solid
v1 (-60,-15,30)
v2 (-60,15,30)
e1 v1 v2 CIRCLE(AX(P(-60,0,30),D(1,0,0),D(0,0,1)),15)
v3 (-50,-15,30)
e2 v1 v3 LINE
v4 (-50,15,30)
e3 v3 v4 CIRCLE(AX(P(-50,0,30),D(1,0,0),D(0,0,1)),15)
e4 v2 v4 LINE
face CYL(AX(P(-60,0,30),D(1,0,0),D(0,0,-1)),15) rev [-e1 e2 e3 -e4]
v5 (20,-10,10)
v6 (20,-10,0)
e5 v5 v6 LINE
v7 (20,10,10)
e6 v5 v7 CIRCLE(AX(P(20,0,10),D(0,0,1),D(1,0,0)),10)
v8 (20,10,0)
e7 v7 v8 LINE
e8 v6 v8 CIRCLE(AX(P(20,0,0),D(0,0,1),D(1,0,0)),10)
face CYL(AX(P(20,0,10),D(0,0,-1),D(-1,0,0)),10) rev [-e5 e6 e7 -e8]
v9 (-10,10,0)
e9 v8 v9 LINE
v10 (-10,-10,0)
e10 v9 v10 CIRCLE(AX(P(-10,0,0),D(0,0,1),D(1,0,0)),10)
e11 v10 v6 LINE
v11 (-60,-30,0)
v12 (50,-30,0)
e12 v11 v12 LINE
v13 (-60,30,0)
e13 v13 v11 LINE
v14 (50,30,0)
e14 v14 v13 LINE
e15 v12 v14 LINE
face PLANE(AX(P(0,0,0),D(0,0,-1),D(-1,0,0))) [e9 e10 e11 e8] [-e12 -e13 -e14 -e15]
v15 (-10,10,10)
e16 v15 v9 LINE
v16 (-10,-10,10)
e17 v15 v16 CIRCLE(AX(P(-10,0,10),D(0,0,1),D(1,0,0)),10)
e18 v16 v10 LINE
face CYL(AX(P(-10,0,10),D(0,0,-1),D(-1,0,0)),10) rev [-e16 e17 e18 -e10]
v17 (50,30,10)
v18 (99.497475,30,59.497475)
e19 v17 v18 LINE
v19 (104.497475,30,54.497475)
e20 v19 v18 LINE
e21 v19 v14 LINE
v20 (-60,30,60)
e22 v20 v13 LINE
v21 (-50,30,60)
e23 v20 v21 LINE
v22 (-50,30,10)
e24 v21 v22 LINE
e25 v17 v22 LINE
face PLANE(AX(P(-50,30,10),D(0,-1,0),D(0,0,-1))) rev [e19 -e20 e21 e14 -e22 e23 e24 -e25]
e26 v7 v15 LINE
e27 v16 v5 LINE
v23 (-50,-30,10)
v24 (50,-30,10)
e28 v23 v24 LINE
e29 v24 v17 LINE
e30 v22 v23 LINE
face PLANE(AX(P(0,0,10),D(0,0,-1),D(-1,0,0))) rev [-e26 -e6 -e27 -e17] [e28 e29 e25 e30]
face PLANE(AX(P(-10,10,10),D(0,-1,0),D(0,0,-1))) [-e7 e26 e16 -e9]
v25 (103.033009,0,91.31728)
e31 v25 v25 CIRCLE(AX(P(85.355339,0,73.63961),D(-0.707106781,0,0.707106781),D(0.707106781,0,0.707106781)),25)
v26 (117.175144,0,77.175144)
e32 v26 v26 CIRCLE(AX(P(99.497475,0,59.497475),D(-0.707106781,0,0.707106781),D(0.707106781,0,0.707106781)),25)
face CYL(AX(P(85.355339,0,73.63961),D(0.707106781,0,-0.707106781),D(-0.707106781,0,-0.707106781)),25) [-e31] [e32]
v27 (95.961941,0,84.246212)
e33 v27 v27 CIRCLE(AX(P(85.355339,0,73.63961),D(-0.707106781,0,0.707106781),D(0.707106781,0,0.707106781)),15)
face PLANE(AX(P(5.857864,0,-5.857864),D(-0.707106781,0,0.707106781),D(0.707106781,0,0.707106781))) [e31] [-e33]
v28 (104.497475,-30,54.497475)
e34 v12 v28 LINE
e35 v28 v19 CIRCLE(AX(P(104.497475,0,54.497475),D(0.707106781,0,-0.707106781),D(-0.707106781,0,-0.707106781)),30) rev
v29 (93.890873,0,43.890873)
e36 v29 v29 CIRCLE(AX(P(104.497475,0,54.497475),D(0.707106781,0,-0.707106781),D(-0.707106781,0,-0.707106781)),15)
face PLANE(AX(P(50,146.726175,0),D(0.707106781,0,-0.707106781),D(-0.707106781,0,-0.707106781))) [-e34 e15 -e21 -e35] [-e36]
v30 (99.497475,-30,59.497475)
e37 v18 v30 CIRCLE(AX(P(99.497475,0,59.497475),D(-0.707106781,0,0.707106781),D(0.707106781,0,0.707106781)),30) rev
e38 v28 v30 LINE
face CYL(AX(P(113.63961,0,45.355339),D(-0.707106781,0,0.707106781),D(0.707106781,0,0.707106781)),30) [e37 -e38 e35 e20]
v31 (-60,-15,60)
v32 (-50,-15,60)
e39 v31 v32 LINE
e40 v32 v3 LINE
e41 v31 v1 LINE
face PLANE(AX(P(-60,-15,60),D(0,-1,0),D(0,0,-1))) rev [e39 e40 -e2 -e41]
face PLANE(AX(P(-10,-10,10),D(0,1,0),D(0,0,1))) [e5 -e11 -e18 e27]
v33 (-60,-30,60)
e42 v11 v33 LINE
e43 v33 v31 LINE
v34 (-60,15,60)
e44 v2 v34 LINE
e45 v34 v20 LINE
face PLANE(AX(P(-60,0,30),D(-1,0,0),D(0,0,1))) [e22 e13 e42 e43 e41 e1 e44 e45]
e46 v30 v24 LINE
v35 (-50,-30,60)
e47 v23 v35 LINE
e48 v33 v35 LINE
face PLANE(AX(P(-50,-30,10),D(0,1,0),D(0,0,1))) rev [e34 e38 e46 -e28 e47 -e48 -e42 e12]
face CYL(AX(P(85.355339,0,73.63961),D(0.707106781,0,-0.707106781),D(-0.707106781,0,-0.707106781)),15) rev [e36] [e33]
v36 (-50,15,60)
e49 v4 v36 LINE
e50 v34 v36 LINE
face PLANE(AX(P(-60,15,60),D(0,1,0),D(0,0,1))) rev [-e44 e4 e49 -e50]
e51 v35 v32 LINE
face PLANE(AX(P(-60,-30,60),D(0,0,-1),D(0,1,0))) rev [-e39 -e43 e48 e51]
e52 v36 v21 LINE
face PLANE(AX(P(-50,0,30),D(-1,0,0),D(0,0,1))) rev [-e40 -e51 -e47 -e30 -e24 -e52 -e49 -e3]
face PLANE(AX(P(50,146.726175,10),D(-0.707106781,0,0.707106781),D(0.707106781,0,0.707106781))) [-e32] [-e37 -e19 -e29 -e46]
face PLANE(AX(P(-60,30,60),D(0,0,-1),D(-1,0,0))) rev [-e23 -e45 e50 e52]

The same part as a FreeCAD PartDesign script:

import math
import FreeCAD as App
import Part
import Sketcher
from FreeCAD import Vector
Q = App.Units.Quantity


def add_polygon(sketch, points):
    """Adds a closed chain of lines whose ends are joined by coincident constraints."""
    first, n = sketch.GeometryCount, len(points)
    for a, b in zip(points, points[1:] + points[:1]):
        sketch.addGeometry(Part.LineSegment(App.Vector(*a, 0), App.Vector(*b, 0)), False)
    for i in range(n):
        sketch.addConstraint(Sketcher.Constraint("Coincident", first + i, 2, first + (i + 1) % n, 1))

doc = App.newDocument("Part")
params = doc.addObject("Spreadsheet::Sheet", "Params")
for row, (alias, value) in enumerate([
    ("sketch1_radius", "10 mm"),
    ("sketch1_width", "100 mm"),
    ("sketch1_width2", "30 mm"),
    ("sketch1_height", "60 mm"),
    ("pad1_length", "10 mm"),
    ("sketch2_radius", "15 mm"),
    ("sketch2_width", "60 mm"),
    ("sketch2_height", "30 mm"),
    ("pad2_length", "10 mm"),
    ("sketch3_height", "10 mm"),
    ("pad3_length", "60 mm"),
    ("sketch4_diameter", "50 mm"),
    ("sketch4_diameter2", "30 mm"),
    ("pad4_length", "20 mm"),
    ("sketch5_radius", "30 mm"),
    ("pocket1_length", "20 mm"),
    ("sketch6_diameter", "30 mm"),
    ("pocket2_length", "20 mm"),
], start=1):
    params.set(f"A{row}", alias)
    params.set(f"B{row}", "=" + value)
    params.setAlias(f"B{row}", alias)

body = doc.addObject("PartDesign::Body", "Body")

sketch1 = doc.addObject("Sketcher::SketchObject", "Sketch")
body.addObject(sketch1)
sketch1.AttachmentSupport = (doc.XY_Plane, [""])
sketch1.MapMode = "FlatFace"
add_polygon(sketch1, [(-50, 30), (-50, -30), (50, -30), (50, 30)])
sketch1.addGeometry(Part.ArcOfCircle(Part.Circle(Vector(-10, 0, 0), Vector(0, 0, 1), 10), math.radians(90), math.radians(270)), False)
sketch1.addGeometry(Part.LineSegment(Vector(-10, 10, 0), Vector(20, 10, 0)), False)
sketch1.addGeometry(Part.ArcOfCircle(Part.Circle(Vector(20, 0, 0), Vector(0, 0, 1), 10), math.radians(-90), math.radians(90)), False)
sketch1.addGeometry(Part.LineSegment(Vector(20, -10, 0), Vector(-10, -10, 0)), False)
sketch1.addConstraint([
    Sketcher.Constraint("Tangent", 4, 1, 5, 1),
    Sketcher.Constraint("Tangent", 5, 2, 6, 2),
    Sketcher.Constraint("Tangent", 6, 1, 7, 1),
    Sketcher.Constraint("Tangent", 7, 2, 4, 2),
    Sketcher.Constraint("Vertical", 0),
    Sketcher.Constraint("Horizontal", 1),
    Sketcher.Constraint("Vertical", 2),
    Sketcher.Constraint("Horizontal", 3),
    Sketcher.Constraint("Horizontal", 5),
    Sketcher.Constraint("Horizontal", 7),
    Sketcher.Constraint("Symmetric", 0, 2, 2, 2, -1, 1),
    Sketcher.Constraint("PointOnObject", 4, 3, -1),
    Sketcher.Constraint("Radius", 4, 10.0),
    Sketcher.Constraint("DistanceX", 1, 1, 1, 2, 100.0),
    Sketcher.Constraint("DistanceX", 5, 1, 5, 2, 30.0),
    Sketcher.Constraint("DistanceY", 0, 2, 0, 1, 60.0),
    Sketcher.Constraint("DistanceX", 4, 3, -1, 1, 10.0),
])
sketch1.setExpression("Constraints[16]", "Params.sketch1_radius")
sketch1.setExpression("Constraints[17]", "Params.sketch1_width")
sketch1.setExpression("Constraints[18]", "Params.sketch1_width2")
sketch1.setExpression("Constraints[19]", "Params.sketch1_height")
pad1 = doc.addObject("PartDesign::Pad", "Pad")
body.addObject(pad1)
pad1.Profile = sketch1
pad1.setExpression("Length", "Params.pad1_length")

sketch2 = doc.addObject("Sketcher::SketchObject", "Sketch001")
body.addObject(sketch2)
sketch2.AttachmentSupport = (doc.YZ_Plane, [""])
sketch2.MapMode = "FlatFace"
sketch2.AttachmentOffset = App.Placement(Vector(0, 0, -50), App.Rotation())
sketch2.addGeometry([
    Part.LineSegment(Vector(30, 60, 0), Vector(30, 0, 0)),
    Part.LineSegment(Vector(30, 0, 0), Vector(-30, 0, 0)),
    Part.LineSegment(Vector(-30, 0, 0), Vector(-30, 60, 0)),
    Part.LineSegment(Vector(-30, 60, 0), Vector(-15, 60, 0)),
    Part.LineSegment(Vector(-15, 60, 0), Vector(-15, 30, 0)),
    Part.ArcOfCircle(Part.Circle(Vector(0, 30, 0), Vector(0, 0, 1), 15), math.radians(180), math.radians(360)),
    Part.LineSegment(Vector(15, 30, 0), Vector(15, 60, 0)),
    Part.LineSegment(Vector(15, 60, 0), Vector(30, 60, 0)),
], False)
sketch2.addConstraint([
    Sketcher.Constraint("Coincident", 0, 2, 1, 1),
    Sketcher.Constraint("Coincident", 1, 2, 2, 1),
    Sketcher.Constraint("Coincident", 2, 2, 3, 1),
    Sketcher.Constraint("Coincident", 3, 2, 4, 1),
    Sketcher.Constraint("Tangent", 4, 2, 5, 1),
    Sketcher.Constraint("Tangent", 5, 2, 6, 1),
    Sketcher.Constraint("Coincident", 6, 2, 7, 1),
    Sketcher.Constraint("Coincident", 7, 2, 0, 1),
    Sketcher.Constraint("Vertical", 0),
    Sketcher.Constraint("Horizontal", 1),
    Sketcher.Constraint("Vertical", 2),
    Sketcher.Constraint("Horizontal", 3),
    Sketcher.Constraint("Vertical", 4),
    Sketcher.Constraint("Vertical", 6),
    Sketcher.Constraint("Horizontal", 7),
    Sketcher.Constraint("Symmetric", 0, 2, 1, 2, -1, 1),
    Sketcher.Constraint("Symmetric", 3, 2, 6, 2, -2),
    Sketcher.Constraint("Equal", 1, 0),
    Sketcher.Constraint("Radius", 5, 15.0),
    Sketcher.Constraint("DistanceX", 1, 2, 1, 1, 60.0),
    Sketcher.Constraint("DistanceY", 4, 2, 4, 1, 30.0),
])
sketch2.setExpression("Constraints[18]", "Params.sketch2_radius")
sketch2.setExpression("Constraints[19]", "Params.sketch2_width")
sketch2.setExpression("Constraints[20]", "Params.sketch2_height")
pad2 = doc.addObject("PartDesign::Pad", "Pad001")
body.addObject(pad2)
pad2.Profile = sketch2
pad2.setExpression("Length", "Params.pad2_length")
pad2.Reversed = True

sketch3 = doc.addObject("Sketcher::SketchObject", "Sketch002")
body.addObject(sketch3)
sketch3.AttachmentSupport = (doc.XZ_Plane, [""])
sketch3.MapMode = "FlatFace"
sketch3.AttachmentOffset = App.Placement(Vector(0, 0, 30), App.Rotation())
add_polygon(sketch3, [(125, 85), (50, 10), (50, 0), (130, 80)])
sketch3.addConstraint([
    Sketcher.Constraint("Vertical", 1),
    Sketcher.Constraint("PointOnObject", 1, 2, -1),
    Sketcher.Constraint("Parallel", 0, 2),
    Sketcher.Constraint("Perpendicular", 2, 3),
    Sketcher.Constraint("DistanceY", 1, 2, 1, 1, 10.0),
    Sketcher.Constraint("Angle", 0, Q("-135 deg")),
    Sketcher.Constraint("DistanceX", -1, 1, 0, 2, 50.0),
    Sketcher.Constraint("DistanceX", -1, 1, 2, 2, 130.0),
])
sketch3.setExpression("Constraints[8]", "Params.sketch3_height")
pad3 = doc.addObject("PartDesign::Pad", "Pad002")
body.addObject(pad3)
pad3.Profile = sketch3
pad3.setExpression("Length", "Params.pad3_length")
pad3.Reversed = True

sketch4 = doc.addObject("Sketcher::SketchObject", "Sketch003")
body.addObject(sketch4)
sketch4.Placement = App.Placement(Vector(20, 0, -20), App.Rotation(Vector(0.707106781, 0, 0.707106781), Vector(0, 0.999999999, 0), Vector(-0.707106781, 0, 0.707106781), "ZXY"))
sketch4.addGeometry([
    Part.Circle(Vector(112, 0, 0), Vector(0, 0, 1), 25),
    Part.Circle(Vector(112, 0, 0), Vector(0, 0, 1), 15),
], False)
sketch4.addConstraint([
    Sketcher.Constraint("Coincident", 1, 3, 0, 3),
    Sketcher.Constraint("PointOnObject", 0, 3, -1),
    Sketcher.Constraint("Diameter", 0, 50.0),
    Sketcher.Constraint("Diameter", 1, 30.0),
    Sketcher.Constraint("DistanceX", -1, 1, 0, 3, 112.426407),
])
sketch4.setExpression("Constraints[2]", "Params.sketch4_diameter")
sketch4.setExpression("Constraints[3]", "Params.sketch4_diameter2")
pad4 = doc.addObject("PartDesign::Pad", "Pad003")
body.addObject(pad4)
pad4.Profile = sketch4
pad4.setExpression("Length", "Params.pad4_length")

sketch5 = doc.addObject("Sketcher::SketchObject", "Sketch004")
body.addObject(sketch5)
sketch5.Placement = App.Placement(Vector(20, 0, -20), App.Rotation(Vector(0.707106781, 0, 0.707106781), Vector(0, 0.999999999, 0), Vector(-0.707106781, 0, 0.707106781), "ZXY"))
sketch5.addGeometry([
    Part.LineSegment(Vector(112, -30, 0), Vector(148, -30, 0)),
    Part.LineSegment(Vector(148, -30, 0), Vector(148, 30, 0)),
    Part.LineSegment(Vector(148, 30, 0), Vector(112, 30, 0)),
    Part.ArcOfCircle(Part.Circle(Vector(112, 0, 0), Vector(0, 0, 1), 30), math.radians(-90), math.radians(90)),
], False)
sketch5.addConstraint([
    Sketcher.Constraint("Coincident", 0, 2, 1, 1),
    Sketcher.Constraint("Coincident", 1, 2, 2, 1),
    Sketcher.Constraint("Tangent", 2, 2, 3, 2),
    Sketcher.Constraint("Tangent", 3, 1, 0, 1),
    Sketcher.Constraint("Horizontal", 0),
    Sketcher.Constraint("Vertical", 1),
    Sketcher.Constraint("Horizontal", 2),
    Sketcher.Constraint("PointOnObject", 3, 3, -1),
    Sketcher.Constraint("Radius", 3, 30.0),
    Sketcher.Constraint("DistanceX", 0, 1, 0, 2, 36.066017),
    Sketcher.Constraint("DistanceX", -1, 1, 3, 3, 112.426407),
])
sketch5.setExpression("Constraints[8]", "Params.sketch5_radius")
pocket1 = doc.addObject("PartDesign::Pocket", "Pocket")
body.addObject(pocket1)
pocket1.Profile = sketch5
pocket1.setExpression("Length", "Params.pocket1_length")

sketch6 = doc.addObject("Sketcher::SketchObject", "Sketch005")
body.addObject(sketch6)
sketch6.Placement = App.Placement(Vector(34.142136, 0, -34.142136), App.Rotation(Vector(0.707106781, 0, 0.707106781), Vector(0, 0.999999999, 0), Vector(-0.707106781, 0, 0.707106781), "ZXY"))
sketch6.addGeometry(Part.Circle(Vector(112, 0, 0), Vector(0, 0, 1), 15), False)
sketch6.addConstraint([
    Sketcher.Constraint("PointOnObject", 0, 3, -1),
    Sketcher.Constraint("Diameter", 0, 30.0),
    Sketcher.Constraint("DistanceX", -1, 1, 0, 3, 112.426407),
])
sketch6.setExpression("Constraints[1]", "Params.sketch6_diameter")
pocket2 = doc.addObject("PartDesign::Pocket", "Pocket001")
body.addObject(pocket2)
pocket2.Profile = sketch6
pocket2.setExpression("Length", "Params.pocket2_length")
pocket2.Reversed = True

doc.recompute()
